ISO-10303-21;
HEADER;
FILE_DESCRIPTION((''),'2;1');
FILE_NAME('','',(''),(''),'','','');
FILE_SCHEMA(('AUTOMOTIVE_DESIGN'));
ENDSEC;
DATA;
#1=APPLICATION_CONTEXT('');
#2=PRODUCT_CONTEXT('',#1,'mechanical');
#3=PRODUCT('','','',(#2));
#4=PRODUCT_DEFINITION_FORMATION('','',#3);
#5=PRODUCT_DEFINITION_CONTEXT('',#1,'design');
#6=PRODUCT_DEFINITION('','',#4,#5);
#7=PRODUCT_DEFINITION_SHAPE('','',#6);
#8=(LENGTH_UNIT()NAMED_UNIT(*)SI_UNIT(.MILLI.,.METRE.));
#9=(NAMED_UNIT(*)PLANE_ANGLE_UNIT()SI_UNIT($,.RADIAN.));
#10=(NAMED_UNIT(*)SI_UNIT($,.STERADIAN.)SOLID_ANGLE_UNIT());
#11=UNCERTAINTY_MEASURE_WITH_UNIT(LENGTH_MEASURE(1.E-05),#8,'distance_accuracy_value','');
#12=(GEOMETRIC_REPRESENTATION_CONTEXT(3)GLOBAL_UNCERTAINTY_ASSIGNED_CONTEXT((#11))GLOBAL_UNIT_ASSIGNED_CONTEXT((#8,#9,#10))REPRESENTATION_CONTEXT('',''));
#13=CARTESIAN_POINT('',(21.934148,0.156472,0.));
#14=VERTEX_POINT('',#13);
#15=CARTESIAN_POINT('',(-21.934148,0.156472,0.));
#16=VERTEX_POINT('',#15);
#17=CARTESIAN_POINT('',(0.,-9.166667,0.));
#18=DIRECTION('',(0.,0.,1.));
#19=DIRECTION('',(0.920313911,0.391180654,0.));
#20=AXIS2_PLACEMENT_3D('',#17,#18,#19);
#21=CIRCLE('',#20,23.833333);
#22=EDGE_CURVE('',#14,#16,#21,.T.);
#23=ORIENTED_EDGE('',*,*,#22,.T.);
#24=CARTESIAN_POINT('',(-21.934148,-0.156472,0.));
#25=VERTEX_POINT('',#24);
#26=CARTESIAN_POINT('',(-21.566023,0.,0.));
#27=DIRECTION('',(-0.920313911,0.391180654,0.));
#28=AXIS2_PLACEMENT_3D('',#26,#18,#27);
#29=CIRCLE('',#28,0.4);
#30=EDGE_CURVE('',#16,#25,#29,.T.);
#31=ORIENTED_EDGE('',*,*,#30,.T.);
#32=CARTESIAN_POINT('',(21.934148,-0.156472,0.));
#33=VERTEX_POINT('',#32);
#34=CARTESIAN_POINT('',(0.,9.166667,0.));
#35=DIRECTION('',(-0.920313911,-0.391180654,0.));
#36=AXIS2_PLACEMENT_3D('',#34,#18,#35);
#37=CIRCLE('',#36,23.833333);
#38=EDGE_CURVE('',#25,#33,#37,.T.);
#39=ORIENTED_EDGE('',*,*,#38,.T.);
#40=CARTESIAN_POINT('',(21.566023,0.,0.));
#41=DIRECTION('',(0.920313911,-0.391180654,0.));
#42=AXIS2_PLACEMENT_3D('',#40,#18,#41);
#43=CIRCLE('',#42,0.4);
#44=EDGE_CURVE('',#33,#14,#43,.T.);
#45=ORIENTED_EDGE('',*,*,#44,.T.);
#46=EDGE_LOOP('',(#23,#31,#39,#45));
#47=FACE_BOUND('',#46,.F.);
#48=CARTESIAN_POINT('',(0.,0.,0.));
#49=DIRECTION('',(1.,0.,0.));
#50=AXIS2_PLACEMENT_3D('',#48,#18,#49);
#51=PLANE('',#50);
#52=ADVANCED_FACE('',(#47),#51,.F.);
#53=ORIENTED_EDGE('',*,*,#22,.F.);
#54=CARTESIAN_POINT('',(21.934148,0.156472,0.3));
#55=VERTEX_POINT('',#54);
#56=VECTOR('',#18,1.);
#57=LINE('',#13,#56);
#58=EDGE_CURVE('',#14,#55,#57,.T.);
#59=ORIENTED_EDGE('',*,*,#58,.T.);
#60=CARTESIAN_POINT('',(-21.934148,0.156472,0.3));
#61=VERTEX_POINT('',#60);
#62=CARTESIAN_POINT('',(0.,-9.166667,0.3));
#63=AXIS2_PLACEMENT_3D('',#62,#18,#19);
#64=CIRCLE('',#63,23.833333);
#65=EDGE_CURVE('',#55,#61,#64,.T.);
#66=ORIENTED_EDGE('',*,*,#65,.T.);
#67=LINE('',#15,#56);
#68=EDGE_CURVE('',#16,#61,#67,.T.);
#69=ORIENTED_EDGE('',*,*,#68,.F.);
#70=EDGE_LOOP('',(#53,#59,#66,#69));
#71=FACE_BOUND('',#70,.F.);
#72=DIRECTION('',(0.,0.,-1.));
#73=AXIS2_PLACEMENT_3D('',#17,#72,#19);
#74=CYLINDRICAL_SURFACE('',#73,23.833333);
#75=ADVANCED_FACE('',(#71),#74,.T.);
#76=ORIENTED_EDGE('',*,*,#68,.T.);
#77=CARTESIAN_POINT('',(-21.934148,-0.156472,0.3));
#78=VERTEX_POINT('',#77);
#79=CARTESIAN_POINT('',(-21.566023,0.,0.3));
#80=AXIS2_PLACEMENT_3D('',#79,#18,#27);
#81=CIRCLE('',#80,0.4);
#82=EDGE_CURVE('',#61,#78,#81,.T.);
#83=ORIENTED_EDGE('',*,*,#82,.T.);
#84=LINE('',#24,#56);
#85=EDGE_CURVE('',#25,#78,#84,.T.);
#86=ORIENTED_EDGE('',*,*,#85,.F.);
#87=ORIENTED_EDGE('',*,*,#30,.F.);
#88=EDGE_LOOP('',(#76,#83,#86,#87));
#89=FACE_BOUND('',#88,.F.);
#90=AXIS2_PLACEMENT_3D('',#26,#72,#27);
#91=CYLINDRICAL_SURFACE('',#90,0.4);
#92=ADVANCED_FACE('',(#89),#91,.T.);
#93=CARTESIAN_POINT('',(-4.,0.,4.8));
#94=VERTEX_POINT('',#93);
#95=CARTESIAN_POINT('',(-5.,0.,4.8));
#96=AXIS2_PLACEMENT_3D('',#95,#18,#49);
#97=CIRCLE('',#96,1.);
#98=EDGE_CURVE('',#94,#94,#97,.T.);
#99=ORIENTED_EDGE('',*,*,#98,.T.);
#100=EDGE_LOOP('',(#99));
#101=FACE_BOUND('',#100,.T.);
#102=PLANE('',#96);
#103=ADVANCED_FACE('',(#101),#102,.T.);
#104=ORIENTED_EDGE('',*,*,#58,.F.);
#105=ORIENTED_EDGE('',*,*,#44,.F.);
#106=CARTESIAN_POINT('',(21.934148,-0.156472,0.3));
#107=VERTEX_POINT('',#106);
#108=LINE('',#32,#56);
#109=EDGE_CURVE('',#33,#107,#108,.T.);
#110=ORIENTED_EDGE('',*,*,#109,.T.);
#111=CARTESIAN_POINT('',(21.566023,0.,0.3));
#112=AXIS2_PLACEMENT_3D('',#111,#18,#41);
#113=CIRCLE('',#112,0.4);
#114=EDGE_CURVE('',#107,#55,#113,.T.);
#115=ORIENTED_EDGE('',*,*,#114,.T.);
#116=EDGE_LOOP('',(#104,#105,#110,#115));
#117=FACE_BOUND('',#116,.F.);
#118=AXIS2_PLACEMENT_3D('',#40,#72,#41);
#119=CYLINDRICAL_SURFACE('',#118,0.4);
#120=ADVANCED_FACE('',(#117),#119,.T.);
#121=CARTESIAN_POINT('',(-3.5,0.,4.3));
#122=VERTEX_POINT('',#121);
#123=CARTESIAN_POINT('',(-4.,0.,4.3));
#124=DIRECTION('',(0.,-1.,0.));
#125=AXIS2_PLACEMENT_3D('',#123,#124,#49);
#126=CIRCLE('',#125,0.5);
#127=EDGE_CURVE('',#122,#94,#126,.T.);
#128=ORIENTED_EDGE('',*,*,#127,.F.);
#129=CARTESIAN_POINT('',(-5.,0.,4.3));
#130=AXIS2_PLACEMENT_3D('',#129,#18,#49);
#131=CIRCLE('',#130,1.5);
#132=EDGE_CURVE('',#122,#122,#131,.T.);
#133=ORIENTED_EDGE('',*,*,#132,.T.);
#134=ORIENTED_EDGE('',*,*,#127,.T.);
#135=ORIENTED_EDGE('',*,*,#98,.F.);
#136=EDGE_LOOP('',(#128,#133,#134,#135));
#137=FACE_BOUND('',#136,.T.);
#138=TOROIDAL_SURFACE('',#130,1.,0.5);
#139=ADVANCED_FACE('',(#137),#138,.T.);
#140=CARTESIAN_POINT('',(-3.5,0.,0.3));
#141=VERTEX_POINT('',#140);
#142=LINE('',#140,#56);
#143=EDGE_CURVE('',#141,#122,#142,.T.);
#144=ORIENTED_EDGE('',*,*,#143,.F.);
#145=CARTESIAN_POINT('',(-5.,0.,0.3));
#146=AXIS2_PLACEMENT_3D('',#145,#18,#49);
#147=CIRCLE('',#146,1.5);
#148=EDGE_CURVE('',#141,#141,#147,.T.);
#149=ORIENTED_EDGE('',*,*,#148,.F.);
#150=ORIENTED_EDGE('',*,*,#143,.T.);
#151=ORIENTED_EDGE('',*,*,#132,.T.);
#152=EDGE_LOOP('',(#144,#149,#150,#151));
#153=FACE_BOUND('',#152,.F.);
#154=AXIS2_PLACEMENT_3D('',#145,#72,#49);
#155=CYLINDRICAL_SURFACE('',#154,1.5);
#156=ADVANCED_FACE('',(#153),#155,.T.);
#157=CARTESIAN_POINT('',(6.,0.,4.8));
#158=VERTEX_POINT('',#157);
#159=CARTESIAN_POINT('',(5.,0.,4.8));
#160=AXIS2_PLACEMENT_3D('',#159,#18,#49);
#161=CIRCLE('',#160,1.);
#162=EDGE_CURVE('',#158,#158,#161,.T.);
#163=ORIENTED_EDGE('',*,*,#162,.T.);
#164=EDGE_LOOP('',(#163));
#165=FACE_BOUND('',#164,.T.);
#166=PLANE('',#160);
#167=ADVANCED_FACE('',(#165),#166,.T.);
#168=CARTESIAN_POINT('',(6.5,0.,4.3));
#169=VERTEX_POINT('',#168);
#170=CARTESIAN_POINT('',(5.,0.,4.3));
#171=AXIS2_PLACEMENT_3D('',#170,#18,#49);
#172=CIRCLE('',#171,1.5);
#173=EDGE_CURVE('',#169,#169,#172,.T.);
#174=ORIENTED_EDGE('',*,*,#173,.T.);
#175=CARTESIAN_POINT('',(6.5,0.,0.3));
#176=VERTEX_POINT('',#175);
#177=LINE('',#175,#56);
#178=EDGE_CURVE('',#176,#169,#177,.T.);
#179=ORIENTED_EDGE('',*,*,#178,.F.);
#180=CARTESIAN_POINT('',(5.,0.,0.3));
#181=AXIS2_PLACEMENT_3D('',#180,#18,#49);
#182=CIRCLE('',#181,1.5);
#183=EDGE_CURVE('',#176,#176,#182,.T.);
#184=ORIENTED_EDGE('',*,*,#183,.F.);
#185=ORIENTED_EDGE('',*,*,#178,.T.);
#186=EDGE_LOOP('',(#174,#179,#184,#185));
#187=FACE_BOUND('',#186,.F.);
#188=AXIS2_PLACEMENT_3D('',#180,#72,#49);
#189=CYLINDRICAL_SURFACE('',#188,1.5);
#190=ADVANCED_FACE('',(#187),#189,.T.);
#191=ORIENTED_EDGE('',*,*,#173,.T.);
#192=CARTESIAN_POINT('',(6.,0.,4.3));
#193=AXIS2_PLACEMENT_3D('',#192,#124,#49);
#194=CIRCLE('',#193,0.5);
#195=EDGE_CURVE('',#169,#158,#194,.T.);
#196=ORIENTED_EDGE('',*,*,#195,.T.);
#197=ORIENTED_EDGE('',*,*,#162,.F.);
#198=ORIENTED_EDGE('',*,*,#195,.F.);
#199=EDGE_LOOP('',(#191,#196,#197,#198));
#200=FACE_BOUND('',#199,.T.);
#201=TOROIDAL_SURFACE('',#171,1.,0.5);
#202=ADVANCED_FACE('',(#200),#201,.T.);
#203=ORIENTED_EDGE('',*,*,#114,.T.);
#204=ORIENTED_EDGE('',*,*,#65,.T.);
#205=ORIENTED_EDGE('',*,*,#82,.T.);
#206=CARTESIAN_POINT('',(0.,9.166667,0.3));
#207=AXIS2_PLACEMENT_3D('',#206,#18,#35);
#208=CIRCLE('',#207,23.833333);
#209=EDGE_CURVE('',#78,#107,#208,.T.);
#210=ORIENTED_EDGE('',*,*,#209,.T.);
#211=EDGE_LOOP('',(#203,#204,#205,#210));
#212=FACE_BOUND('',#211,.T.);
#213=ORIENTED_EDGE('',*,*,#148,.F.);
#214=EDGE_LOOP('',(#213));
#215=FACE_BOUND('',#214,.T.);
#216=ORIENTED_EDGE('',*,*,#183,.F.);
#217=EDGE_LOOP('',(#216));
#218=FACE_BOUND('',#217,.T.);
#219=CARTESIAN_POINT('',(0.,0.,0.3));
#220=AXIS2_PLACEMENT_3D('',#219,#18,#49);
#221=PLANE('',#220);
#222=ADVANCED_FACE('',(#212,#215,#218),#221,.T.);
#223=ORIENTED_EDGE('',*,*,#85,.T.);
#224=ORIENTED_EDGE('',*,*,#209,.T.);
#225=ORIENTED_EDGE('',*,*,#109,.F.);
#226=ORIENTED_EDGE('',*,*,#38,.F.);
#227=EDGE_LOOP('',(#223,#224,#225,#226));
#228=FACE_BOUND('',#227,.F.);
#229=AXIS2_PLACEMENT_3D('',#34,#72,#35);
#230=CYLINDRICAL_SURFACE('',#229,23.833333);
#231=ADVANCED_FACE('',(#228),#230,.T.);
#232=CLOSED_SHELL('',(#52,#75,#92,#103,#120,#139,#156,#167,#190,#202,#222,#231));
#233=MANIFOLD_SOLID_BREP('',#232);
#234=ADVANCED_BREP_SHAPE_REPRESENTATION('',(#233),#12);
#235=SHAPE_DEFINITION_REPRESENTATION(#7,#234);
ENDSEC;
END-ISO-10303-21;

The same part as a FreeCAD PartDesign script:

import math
import FreeCAD as App
import Part
import Sketcher


def edges_at(feature, points):
    """Names of the edges that pass closest to the given points."""
    edges = feature.Shape.Edges
    near = lambda p: min(range(len(edges)), key=lambda i: edges[i].distToShape(Part.Vertex(*p))[0])
    return sorted({f"Edge{near(p) + 1}" for p in points})

doc = App.newDocument("Part")
params = doc.addObject("Spreadsheet::Sheet", "Params")
for row, (alias, value) in enumerate([
    ("sketch1_radius", "0.4 mm"),
    ("pad1_length", "0.3 mm"),
    ("sketch2_diameter", "3 mm"),
    ("pad2_length", "4.5 mm"),
    ("fillet_radius", "0.5 mm"),
], start=1):
    params.set(f"A{row}", alias)
    params.set(f"B{row}", "=" + value)
    params.setAlias(f"B{row}", alias)

body = doc.addObject("PartDesign::Body", "Body")

sketch1 = body.newObject("Sketcher::SketchObject", "Sketch")
sketch1.AttachmentSupport = (doc.getObject("XY_Plane"), [""])
sketch1.MapMode = "FlatFace"
sketch1.addGeometry([
    Part.ArcOfCircle(Part.Circle(App.Vector(21.566023, 0, 0), App.Vector(0, 0, 1), 0.4), math.radians(-23.027983), math.radians(23.027983)),
    Part.ArcOfCircle(Part.Circle(App.Vector(0, -9.166667, 0), App.Vector(0, 0, 1), 23.833333), math.radians(23.027983), math.radians(156.972017)),
    Part.ArcOfCircle(Part.Circle(App.Vector(-21.566023, 0, 0), App.Vector(0, 0, 1), 0.4), math.radians(156.972017), math.radians(203.027983)),
    Part.ArcOfCircle(Part.Circle(App.Vector(0, 9.166667, 0), App.Vector(0, 0, 1), 23.833333), math.radians(-156.972017), math.radians(-23.027983)),
], False)
sketch1.addConstraint([
    Sketcher.Constraint("Tangent", 0, 2, 1, 1),
    Sketcher.Constraint("Tangent", 1, 2, 2, 1),
    Sketcher.Constraint("Tangent", 2, 2, 3, 1),
    Sketcher.Constraint("Tangent", 3, 2, 0, 1),
    Sketcher.Constraint("Equal", 0, 2),
    Sketcher.Constraint("Equal", 1, 3),
    Sketcher.Constraint("Symmetric", 0, 3, 2, 3, -1, 1),
    Sketcher.Constraint("PointOnObject", 0, 3, -1),
    Sketcher.Constraint("Radius", 0, 0.4),
    Sketcher.Constraint("Radius", 1, 23.833333),
    Sketcher.Constraint("DistanceX", -1, 1, 0, 2, 21.934148),
])
sketch1.setExpression("Constraints[8]", "Params.sketch1_radius")
pad1 = body.newObject("PartDesign::Pad", "Pad")
pad1.Profile = sketch1
pad1.setExpression("Length", "Params.pad1_length")

sketch2 = body.newObject("Sketcher::SketchObject", "Sketch001")
sketch2.AttachmentSupport = (doc.getObject("XY_Plane"), [""])
sketch2.MapMode = "FlatFace"
sketch2.AttachmentOffset = App.Placement(App.Vector(0, 0, 0.3), App.Rotation())
sketch2.addGeometry([
    Part.Circle(App.Vector(-5, 0, 0), App.Vector(0, 0, 1), 1.5),
    Part.Circle(App.Vector(5, 0, 0), App.Vector(0, 0, 1), 1.5),
], False)
sketch2.addConstraint([
    Sketcher.Constraint("Equal", 0, 1),
    Sketcher.Constraint("Symmetric", 0, 3, 1, 3, -1, 1),
    Sketcher.Constraint("PointOnObject", 0, 3, -1),
    Sketcher.Constraint("Diameter", 0, 3.0),
    Sketcher.Constraint("DistanceX", 0, 3, -1, 1, 5.0),
])
sketch2.setExpression("Constraints[3]", "Params.sketch2_diameter")
pad2 = body.newObject("PartDesign::Pad", "Pad001")
pad2.Profile = sketch2
pad2.setExpression("Length", "Params.pad2_length")
doc.recompute()

fillet = body.newObject("PartDesign::Fillet", "Fillet")
fillet.Base = (pad2, edges_at(pad2, [(-6.5, 0, 4.8), (3.5, 0, 4.8)]))
fillet.setExpression("Radius", "Params.fillet_radius")

doc.recompute()
